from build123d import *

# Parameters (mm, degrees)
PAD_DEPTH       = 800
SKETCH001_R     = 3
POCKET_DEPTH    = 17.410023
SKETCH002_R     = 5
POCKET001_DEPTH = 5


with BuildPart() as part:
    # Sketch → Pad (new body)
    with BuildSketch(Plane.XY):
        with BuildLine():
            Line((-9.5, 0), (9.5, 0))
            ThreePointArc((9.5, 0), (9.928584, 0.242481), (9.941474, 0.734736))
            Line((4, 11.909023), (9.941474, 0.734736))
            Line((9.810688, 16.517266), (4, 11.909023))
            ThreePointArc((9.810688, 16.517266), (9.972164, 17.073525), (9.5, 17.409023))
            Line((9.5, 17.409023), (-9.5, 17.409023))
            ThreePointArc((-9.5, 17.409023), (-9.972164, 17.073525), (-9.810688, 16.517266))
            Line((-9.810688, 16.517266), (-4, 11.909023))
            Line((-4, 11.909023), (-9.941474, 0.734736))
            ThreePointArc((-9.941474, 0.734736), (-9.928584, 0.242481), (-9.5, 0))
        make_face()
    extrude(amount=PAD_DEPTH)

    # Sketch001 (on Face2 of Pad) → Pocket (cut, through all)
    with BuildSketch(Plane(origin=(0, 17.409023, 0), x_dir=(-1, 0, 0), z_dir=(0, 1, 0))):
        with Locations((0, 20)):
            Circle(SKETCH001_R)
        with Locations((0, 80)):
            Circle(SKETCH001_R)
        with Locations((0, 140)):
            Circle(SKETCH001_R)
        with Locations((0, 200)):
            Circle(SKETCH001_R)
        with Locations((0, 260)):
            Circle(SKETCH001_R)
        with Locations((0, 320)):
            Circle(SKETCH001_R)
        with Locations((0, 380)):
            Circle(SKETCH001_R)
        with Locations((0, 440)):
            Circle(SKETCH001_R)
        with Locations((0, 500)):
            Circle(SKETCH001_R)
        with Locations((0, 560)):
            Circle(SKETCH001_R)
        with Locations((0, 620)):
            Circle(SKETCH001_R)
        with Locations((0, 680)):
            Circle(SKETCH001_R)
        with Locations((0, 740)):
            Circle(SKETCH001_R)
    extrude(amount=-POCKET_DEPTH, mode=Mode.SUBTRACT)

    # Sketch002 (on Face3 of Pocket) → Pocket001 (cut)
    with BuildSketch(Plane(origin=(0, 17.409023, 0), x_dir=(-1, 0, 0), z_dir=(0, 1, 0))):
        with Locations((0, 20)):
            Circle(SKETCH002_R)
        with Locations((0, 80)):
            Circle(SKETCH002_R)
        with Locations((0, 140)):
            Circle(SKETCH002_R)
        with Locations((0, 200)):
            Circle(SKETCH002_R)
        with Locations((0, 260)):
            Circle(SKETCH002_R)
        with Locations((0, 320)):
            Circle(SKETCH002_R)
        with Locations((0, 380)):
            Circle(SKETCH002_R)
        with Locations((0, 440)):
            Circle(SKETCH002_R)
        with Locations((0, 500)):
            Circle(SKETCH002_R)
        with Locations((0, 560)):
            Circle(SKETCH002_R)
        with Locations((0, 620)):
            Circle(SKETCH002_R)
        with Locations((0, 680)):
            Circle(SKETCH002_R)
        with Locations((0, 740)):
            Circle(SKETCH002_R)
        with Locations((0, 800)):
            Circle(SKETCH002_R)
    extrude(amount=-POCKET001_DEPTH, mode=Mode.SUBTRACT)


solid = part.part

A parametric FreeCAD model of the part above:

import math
import FreeCAD as App
import Part
import Sketcher
Q = App.Units.Quantity

doc = App.newDocument("Part")
body = doc.addObject("PartDesign::Body", "Body")

# Sketch on XY plane
sketch1 = doc.addObject("Sketcher::SketchObject", "Sketch")
body.addObject(sketch1)
sketch1.AttachmentSupport = (doc.XY_Plane, [""])
sketch1.MapMode = "FlatFace"
sketch1.addGeometry([
    Part.LineSegment(App.Vector(-9.5, 0, 0), App.Vector(9.5, 0, 0)),  # 0
    Part.ArcOfCircle(Part.Circle(App.Vector(9.5, 0.5, 0), App.Vector(0, 0, 1), 0.5), math.radians(-90), math.radians(28)),  # 1
    Part.LineSegment(App.Vector(9.94, 0.73, 0), App.Vector(4, 11.91, 0)),  # 2
    Part.LineSegment(App.Vector(4, 11.91, 0), App.Vector(9.81, 16.52, 0)),  # 3
    Part.ArcOfCircle(Part.Circle(App.Vector(9.5, 16.91, 0), App.Vector(0, 0, 1), 0.5), math.radians(-52), math.radians(90)),  # 4
    Part.LineSegment(App.Vector(9.5, 17.41, 0), App.Vector(-9.5, 17.41, 0)),  # 5
    Part.ArcOfCircle(Part.Circle(App.Vector(-9.5, 16.91, 0), App.Vector(0, 0, 1), 0.5), math.radians(90), math.radians(232)),  # 6
    Part.LineSegment(App.Vector(-9.81, 16.52, 0), App.Vector(-4, 11.91, 0)),  # 7
    Part.LineSegment(App.Vector(-4, 11.91, 0), App.Vector(-9.94, 0.73, 0)),  # 8
    Part.ArcOfCircle(Part.Circle(App.Vector(-9.5, 0.5, 0), App.Vector(0, 0, 1), 0.5), math.radians(152), math.radians(270)),  # 9
], False)
sketch1.addConstraint([
    Sketcher.Constraint("Tangent", 0, 2, 1, 1),
    Sketcher.Constraint("Tangent", 1, 2, 2, 1),
    Sketcher.Constraint("Coincident", 2, 2, 3, 1),
    Sketcher.Constraint("Tangent", 3, 2, 4, 1),
    Sketcher.Constraint("Tangent", 4, 2, 5, 1),
    Sketcher.Constraint("Tangent", 5, 2, 6, 1),
    Sketcher.Constraint("Tangent", 6, 2, 7, 1),
    Sketcher.Constraint("Coincident", 7, 2, 8, 1),
    Sketcher.Constraint("Tangent", 8, 2, 9, 1),
    Sketcher.Constraint("Tangent", 9, 2, 0, 1),
    Sketcher.Constraint("Horizontal", 0),
    Sketcher.Constraint("Horizontal", 5),
    Sketcher.Constraint("Equal", 1, 4),
    Sketcher.Constraint("Equal", 4, 6),
    Sketcher.Constraint("Equal", 6, 9),
    Sketcher.Constraint("Symmetric", 0, 2, 9, 2, -1, 1),
    Sketcher.Constraint("Symmetric", 3, 2, 6, 2, -2),
    Sketcher.Constraint("Horizontal", 2, 2, 7, 2),
    Sketcher.Constraint("Vertical", 1, 3, 4, 3),
    Sketcher.Constraint("Radius", 1, Q("0.5 mm")),
    Sketcher.Constraint("DistanceX", 0, 1, 0, 2, Q("19 mm")),
    Sketcher.Constraint("Angle", 2, Q("118.000001 deg")),
    Sketcher.Constraint("DistanceX", -1, 1, 2, 2, Q("4 mm")),
    Sketcher.Constraint("DistanceY", 2, 2, 4, 3, Q("4.999999 mm")),
])
pad1 = doc.addObject("PartDesign::Pad", "Pad")
body.addObject(pad1)
pad1.Profile = sketch1
pad1.Length = 800

# Sketch on XZ plane
sketch2 = doc.addObject("Sketcher::SketchObject", "Sketch001")
body.addObject(sketch2)
sketch2.AttachmentSupport = (doc.XZ_Plane, [""])
sketch2.MapMode = "FlatFace"
sketch2.AttachmentOffset = App.Placement(App.Vector(0, 0, -17.409023), App.Rotation())
sketch2.addGeometry([
    Part.Circle(App.Vector(0, 20, 0), App.Vector(0, 0, 1), 3),  # 0
    Part.Circle(App.Vector(0, 80, 0), App.Vector(0, 0, 1), 3),  # 1
    Part.Circle(App.Vector(0, 140, 0), App.Vector(0, 0, 1), 3),  # 2
    Part.Circle(App.Vector(0, 200, 0), App.Vector(0, 0, 1), 3),  # 3
    Part.Circle(App.Vector(0, 260, 0), App.Vector(0, 0, 1), 3),  # 4
    Part.Circle(App.Vector(0, 320, 0), App.Vector(0, 0, 1), 3),  # 5
    Part.Circle(App.Vector(0, 380, 0), App.Vector(0, 0, 1), 3),  # 6
    Part.Circle(App.Vector(0, 440, 0), App.Vector(0, 0, 1), 3),  # 7
    Part.Circle(App.Vector(0, 500, 0), App.Vector(0, 0, 1), 3),  # 8
    Part.Circle(App.Vector(0, 560, 0), App.Vector(0, 0, 1), 3),  # 9
    Part.Circle(App.Vector(0, 620, 0), App.Vector(0, 0, 1), 3),  # 10
    Part.Circle(App.Vector(0, 680, 0), App.Vector(0, 0, 1), 3),  # 11
    Part.Circle(App.Vector(0, 740, 0), App.Vector(0, 0, 1), 3),  # 12
], False)
sketch2.addConstraint([
    Sketcher.Constraint("Equal", 0, 1),
    Sketcher.Constraint("Equal", 1, 2),
    Sketcher.Constraint("Equal", 2, 3),
    Sketcher.Constraint("Equal", 3, 4),
    Sketcher.Constraint("Equal", 4, 5),
    Sketcher.Constraint("Equal", 5, 6),
    Sketcher.Constraint("Equal", 6, 7),
    Sketcher.Constraint("Equal", 7, 8),
    Sketcher.Constraint("Equal", 8, 9),
    Sketcher.Constraint("Equal", 9, 10),
    Sketcher.Constraint("Equal", 10, 11),
    Sketcher.Constraint("Equal", 11, 12),
    Sketcher.Constraint("PointOnObject", 0, 3, -2),
    Sketcher.Constraint("PointOnObject", 1, 3, -2),
    Sketcher.Constraint("PointOnObject", 2, 3, -2),
    Sketcher.Constraint("PointOnObject", 3, 3, -2),
    Sketcher.Constraint("PointOnObject", 4, 3, -2),
    Sketcher.Constraint("PointOnObject", 5, 3, -2),
    Sketcher.Constraint("PointOnObject", 6, 3, -2),
    Sketcher.Constraint("PointOnObject", 7, 3, -2),
    Sketcher.Constraint("PointOnObject", 8, 3, -2),
    Sketcher.Constraint("PointOnObject", 9, 3, -2),
    Sketcher.Constraint("PointOnObject", 10, 3, -2),
    Sketcher.Constraint("PointOnObject", 11, 3, -2),
    Sketcher.Constraint("PointOnObject", 12, 3, -2),
    Sketcher.Constraint("Diameter", 0, Q("6 mm")),
    Sketcher.Constraint("DistanceY", -1, 1, 0, 3, Q("20 mm")),
    Sketcher.Constraint("DistanceY", -1, 1, 1, 3, Q("80 mm")),
    Sketcher.Constraint("DistanceY", -1, 1, 2, 3, Q("140 mm")),
    Sketcher.Constraint("DistanceY", -1, 1, 3, 3, Q("200 mm")),
    Sketcher.Constraint("DistanceY", -1, 1, 4, 3, Q("260 mm")),
    Sketcher.Constraint("DistanceY", -1, 1, 5, 3, Q("320 mm")),
    Sketcher.Constraint("DistanceY", -1, 1, 6, 3, Q("380 mm")),
    Sketcher.Constraint("DistanceY", -1, 1, 7, 3, Q("440 mm")),
    Sketcher.Constraint("DistanceY", -1, 1, 8, 3, Q("500 mm")),
    Sketcher.Constraint("DistanceY", -1, 1, 9, 3, Q("560 mm")),
    Sketcher.Constraint("DistanceY", -1, 1, 10, 3, Q("620 mm")),
    Sketcher.Constraint("DistanceY", -1, 1, 11, 3, Q("680 mm")),
    Sketcher.Constraint("DistanceY", -1, 1, 12, 3, Q("740 mm")),
])
pocket1 = doc.addObject("PartDesign::Pocket", "Pocket")
body.addObject(pocket1)
pocket1.Profile = sketch2
pocket1.Type = "ThroughAll"
pocket1.Reversed = True

# Sketch on XZ plane
sketch3 = doc.addObject("Sketcher::SketchObject", "Sketch002")
body.addObject(sketch3)
sketch3.AttachmentSupport = (doc.XZ_Plane, [""])
sketch3.MapMode = "FlatFace"
sketch3.AttachmentOffset = App.Placement(App.Vector(0, 0, -17.409023), App.Rotation())
sketch3.addGeometry([
    Part.Circle(App.Vector(0, 20, 0), App.Vector(0, 0, 1), 5),  # 0
    Part.Circle(App.Vector(0, 80, 0), App.Vector(0, 0, 1), 5),  # 1
    Part.Circle(App.Vector(0, 140, 0), App.Vector(0, 0, 1), 5),  # 2
    Part.Circle(App.Vector(0, 200, 0), App.Vector(0, 0, 1), 5),  # 3
    Part.Circle(App.Vector(0, 260, 0), App.Vector(0, 0, 1), 5),  # 4
    Part.Circle(App.Vector(0, 320, 0), App.Vector(0, 0, 1), 5),  # 5
    Part.Circle(App.Vector(0, 380, 0), App.Vector(0, 0, 1), 5),  # 6
    Part.Circle(App.Vector(0, 440, 0), App.Vector(0, 0, 1), 5),  # 7
    Part.Circle(App.Vector(0, 500, 0), App.Vector(0, 0, 1), 5),  # 8
    Part.Circle(App.Vector(0, 560, 0), App.Vector(0, 0, 1), 5),  # 9
    Part.Circle(App.Vector(0, 620, 0), App.Vector(0, 0, 1), 5),  # 10
    Part.Circle(App.Vector(0, 680, 0), App.Vector(0, 0, 1), 5),  # 11
    Part.Circle(App.Vector(0, 740, 0), App.Vector(0, 0, 1), 5),  # 12
    Part.Circle(App.Vector(0, 800, 0), App.Vector(0, 0, 1), 5),  # 13
], False)
sketch3.addConstraint([
    Sketcher.Constraint("Equal", 0, 1),
    Sketcher.Constraint("Equal", 1, 2),
    Sketcher.Constraint("Equal", 2, 3),
    Sketcher.Constraint("Equal", 3, 4),
    Sketcher.Constraint("Equal", 4, 5),
    Sketcher.Constraint("Equal", 5, 6),
    Sketcher.Constraint("Equal", 6, 7),
    Sketcher.Constraint("Equal", 7, 8),
    Sketcher.Constraint("Equal", 8, 9),
    Sketcher.Constraint("Equal", 9, 10),
    Sketcher.Constraint("Equal", 10, 11),
    Sketcher.Constraint("Equal", 11, 12),
    Sketcher.Constraint("Equal", 12, 13),
    Sketcher.Constraint("PointOnObject", 0, 3, -2),
    Sketcher.Constraint("PointOnObject", 1, 3, -2),
    Sketcher.Constraint("PointOnObject", 2, 3, -2),
    Sketcher.Constraint("PointOnObject", 3, 3, -2),
    Sketcher.Constraint("PointOnObject", 4, 3, -2),
    Sketcher.Constraint("PointOnObject", 5, 3, -2),
    Sketcher.Constraint("PointOnObject", 6, 3, -2),
    Sketcher.Constraint("PointOnObject", 7, 3, -2),
    Sketcher.Constraint("PointOnObject", 8, 3, -2),
    Sketcher.Constraint("PointOnObject", 9, 3, -2),
    Sketcher.Constraint("PointOnObject", 10, 3, -2),
    Sketcher.Constraint("PointOnObject", 11, 3, -2),
    Sketcher.Constraint("PointOnObject", 12, 3, -2),
    Sketcher.Constraint("PointOnObject", 13, 3, -2),
    Sketcher.Constraint("Diameter", 0, Q("10 mm")),
    Sketcher.Constraint("DistanceY", -1, 1, 0, 3, Q("20 mm")),
    Sketcher.Constraint("DistanceY", -1, 1, 1, 3, Q("80 mm")),
    Sketcher.Constraint("DistanceY", -1, 1, 2, 3, Q("140 mm")),
    Sketcher.Constraint("DistanceY", -1, 1, 3, 3, Q("200 mm")),
    Sketcher.Constraint("DistanceY", -1, 1, 4, 3, Q("260 mm")),
    Sketcher.Constraint("DistanceY", -1, 1, 5, 3, Q("320 mm")),
    Sketcher.Constraint("DistanceY", -1, 1, 6, 3, Q("380 mm")),
    Sketcher.Constraint("DistanceY", -1, 1, 7, 3, Q("440 mm")),
    Sketcher.Constraint("DistanceY", -1, 1, 8, 3, Q("500 mm")),
    Sketcher.Constraint("DistanceY", -1, 1, 9, 3, Q("560 mm")),
    Sketcher.Constraint("DistanceY", -1, 1, 10, 3, Q("620 mm")),
    Sketcher.Constraint("DistanceY", -1, 1, 11, 3, Q("680 mm")),
    Sketcher.Constraint("DistanceY", -1, 1, 12, 3, Q("740 mm")),
    Sketcher.Constraint("DistanceY", -1, 1, 13, 3, Q("800 mm")),
])
pocket2 = doc.addObject("PartDesign::Pocket", "Pocket001")
body.addObject(pocket2)
pocket2.Profile = sketch3
pocket2.Length = 5
pocket2.Reversed = True

doc.recompute()
